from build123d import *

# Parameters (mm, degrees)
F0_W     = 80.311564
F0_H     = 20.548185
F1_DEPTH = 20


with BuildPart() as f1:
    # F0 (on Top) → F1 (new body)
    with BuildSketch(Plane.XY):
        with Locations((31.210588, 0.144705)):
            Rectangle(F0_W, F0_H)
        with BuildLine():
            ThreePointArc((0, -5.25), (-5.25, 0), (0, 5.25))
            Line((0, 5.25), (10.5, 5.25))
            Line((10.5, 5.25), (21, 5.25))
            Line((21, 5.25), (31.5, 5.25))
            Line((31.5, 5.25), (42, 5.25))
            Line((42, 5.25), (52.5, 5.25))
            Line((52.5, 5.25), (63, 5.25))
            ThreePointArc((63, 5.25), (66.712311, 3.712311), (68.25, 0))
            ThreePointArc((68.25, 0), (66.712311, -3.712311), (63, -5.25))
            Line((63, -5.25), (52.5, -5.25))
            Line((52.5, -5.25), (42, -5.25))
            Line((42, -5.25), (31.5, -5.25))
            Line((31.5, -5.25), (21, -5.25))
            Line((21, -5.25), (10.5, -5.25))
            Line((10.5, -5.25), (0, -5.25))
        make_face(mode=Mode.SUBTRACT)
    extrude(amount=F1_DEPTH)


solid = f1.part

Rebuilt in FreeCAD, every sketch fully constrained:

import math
import FreeCAD as App
import Part
import Sketcher

doc = App.newDocument("Part")
body = doc.addObject("PartDesign::Body", "Body")

# Sketch on XY plane
sketch1 = body.newObject("Sketcher::SketchObject", "Sketch")
sketch1.AttachmentSupport = (doc.getObject("XY_Plane"), [""])
sketch1.MapMode = "FlatFace"
sketch1.addGeometry([
    Part.LineSegment(App.Vector(-9, 10, 0), App.Vector(-9, -10, 0)),  # 0
    Part.LineSegment(App.Vector(-9, -10, 0), App.Vector(71, -10, 0)),  # 1
    Part.LineSegment(App.Vector(71, -10, 0), App.Vector(71, 10, 0)),  # 2
    Part.LineSegment(App.Vector(71, 10, 0), App.Vector(-9, 10, 0)),  # 3
    Part.LineSegment(App.Vector(63, -5, 0), App.Vector(0, -5, 0)),  # 4
    Part.ArcOfCircle(Part.Circle(App.Vector(0, 0, 0), App.Vector(0, 0, 1), 5), math.radians(90), math.radians(270)),  # 5
    Part.LineSegment(App.Vector(0, 5, 0), App.Vector(63, 5, 0)),  # 6
    Part.ArcOfCircle(Part.Circle(App.Vector(63, 0, 0), App.Vector(0, 0, 1), 5), math.radians(0), math.radians(90)),  # 7
    Part.ArcOfCircle(Part.Circle(App.Vector(63, 0, 0), App.Vector(0, 0, 1), 5), math.radians(-90), math.radians(0)),  # 8
], False)
sketch1.addConstraint([
    Sketcher.Constraint("Coincident", 0, 2, 1, 1),
    Sketcher.Constraint("Coincident", 1, 2, 2, 1),
    Sketcher.Constraint("Coincident", 2, 2, 3, 1),
    Sketcher.Constraint("Coincident", 3, 2, 0, 1),
    Sketcher.Constraint("Tangent", 4, 2, 5, 2),
    Sketcher.Constraint("Tangent", 5, 1, 6, 1),
    Sketcher.Constraint("Tangent", 6, 2, 7, 2),
    Sketcher.Constraint("Tangent", 7, 1, 8, 2),
    Sketcher.Constraint("Tangent", 8, 1, 4, 1),
    Sketcher.Constraint("Vertical", 0),
    Sketcher.Constraint("Horizontal", 1),
    Sketcher.Constraint("Vertical", 2),
    Sketcher.Constraint("Horizontal", 3),
    Sketcher.Constraint("Horizontal", 4),
    Sketcher.Constraint("Horizontal", 6),
    Sketcher.Constraint("Coincident", 5, 3, -1, 1),
    Sketcher.Constraint("Equal", 5, 7),
    Sketcher.Constraint("PointOnObject", 7, 1, -1),
    Sketcher.Constraint("DistanceX", 4, 2, 4, 1, 63.0),
    Sketcher.Constraint("Radius", 5, 5.25),
    Sketcher.Constraint("DistanceY", 8, 3, 2, 2, 10.418799),
    Sketcher.Constraint("DistanceX", 1, 1, 1, 2, 80.311564),
    Sketcher.Constraint("DistanceY", 0, 2, 0, 1, 20.548185),
    Sketcher.Constraint("DistanceX", -1, 1, 1, 2, 71.36637),
])
pad1 = body.newObject("PartDesign::Pad", "Pad")
pad1.Profile = sketch1
pad1.Length = 20

doc.recompute()
